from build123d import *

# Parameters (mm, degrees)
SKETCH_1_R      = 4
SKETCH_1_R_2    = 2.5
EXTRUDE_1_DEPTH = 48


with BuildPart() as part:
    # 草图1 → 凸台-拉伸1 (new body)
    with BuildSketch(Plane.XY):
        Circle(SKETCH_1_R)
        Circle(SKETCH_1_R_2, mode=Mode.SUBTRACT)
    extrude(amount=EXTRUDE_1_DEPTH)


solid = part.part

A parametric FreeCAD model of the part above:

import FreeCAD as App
import Part
import Sketcher
from FreeCAD import Vector

doc = App.newDocument("Part")
body = doc.addObject("PartDesign::Body", "Body")

# Sketch on XY plane
sketch1 = doc.addObject("Sketcher::SketchObject", "Sketch")
body.addObject(sketch1)
sketch1.AttachmentSupport = (doc.XY_Plane, [""])
sketch1.MapMode = "FlatFace"
sketch1.addGeometry([
    Part.Circle(Vector(0, 0, 0), Vector(0, 0, 1), 4),
    Part.Circle(Vector(0, 0, 0), Vector(0, 0, 1), 2.5),
], False)
sketch1.addConstraint([
    Sketcher.Constraint("Coincident", 0, 3, -1, 1),
    Sketcher.Constraint("Coincident", 1, 3, -1, 1),
    Sketcher.Constraint("Diameter", 0, 8.0),
    Sketcher.Constraint("Diameter", 1, 5.0),
])
pad1 = doc.addObject("PartDesign::Pad", "Pad")
body.addObject(pad1)
pad1.Profile = sketch1
pad1.Length = 48

doc.recompute()
